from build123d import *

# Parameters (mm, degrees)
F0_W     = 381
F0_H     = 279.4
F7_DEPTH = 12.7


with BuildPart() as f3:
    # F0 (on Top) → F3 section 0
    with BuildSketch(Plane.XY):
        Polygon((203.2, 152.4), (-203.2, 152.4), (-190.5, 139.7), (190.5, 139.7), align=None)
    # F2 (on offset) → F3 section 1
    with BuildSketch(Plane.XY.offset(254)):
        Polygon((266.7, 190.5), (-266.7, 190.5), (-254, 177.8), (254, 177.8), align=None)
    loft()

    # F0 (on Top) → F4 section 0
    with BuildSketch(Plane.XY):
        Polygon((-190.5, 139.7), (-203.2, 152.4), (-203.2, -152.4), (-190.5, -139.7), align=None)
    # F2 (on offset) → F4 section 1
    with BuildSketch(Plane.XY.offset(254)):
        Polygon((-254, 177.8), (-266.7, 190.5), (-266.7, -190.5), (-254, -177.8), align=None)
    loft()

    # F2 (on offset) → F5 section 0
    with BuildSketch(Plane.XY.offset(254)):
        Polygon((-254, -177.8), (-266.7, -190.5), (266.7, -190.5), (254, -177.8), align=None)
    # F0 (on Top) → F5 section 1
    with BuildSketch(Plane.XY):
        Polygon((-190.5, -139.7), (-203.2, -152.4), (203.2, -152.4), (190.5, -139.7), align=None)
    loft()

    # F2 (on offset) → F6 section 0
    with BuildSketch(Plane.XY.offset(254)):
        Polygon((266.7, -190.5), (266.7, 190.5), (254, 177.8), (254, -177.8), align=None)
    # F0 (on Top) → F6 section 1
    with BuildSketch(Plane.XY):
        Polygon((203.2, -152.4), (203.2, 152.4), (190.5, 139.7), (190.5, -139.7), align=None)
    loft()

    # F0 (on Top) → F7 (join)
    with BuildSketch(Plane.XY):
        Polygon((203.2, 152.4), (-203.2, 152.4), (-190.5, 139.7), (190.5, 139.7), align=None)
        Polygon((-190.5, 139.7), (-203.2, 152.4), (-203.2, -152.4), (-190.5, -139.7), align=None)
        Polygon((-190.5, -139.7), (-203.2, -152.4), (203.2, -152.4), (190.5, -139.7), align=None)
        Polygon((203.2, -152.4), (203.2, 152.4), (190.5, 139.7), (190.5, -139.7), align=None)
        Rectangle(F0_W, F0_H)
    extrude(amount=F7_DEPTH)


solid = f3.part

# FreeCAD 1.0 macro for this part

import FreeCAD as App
import Part
import Sketcher

V = App.Vector
Q = App.Units.Quantity

doc = App.newDocument("Part")
params = doc.addObject("Spreadsheet::Sheet", "Params")
for row, (alias, value) in enumerate([
    ("sketch1_width", "16 in"),
    ("sketch1_width2", "15 in"),
    ("sketch2_width", "21 in"),
    ("sketch2_width2", "20 in"),
    ("sketch3_height", "12 in"),
    ("sketch3_height2", "11 in"),
    ("sketch4_height", "15 in"),
    ("sketch4_height2", "14 in"),
    ("sketch5_width", "21 in"),
    ("sketch5_width2", "20 in"),
    ("sketch6_width", "16 in"),
    ("sketch6_width2", "15 in"),
    ("sketch7_height", "15 in"),
    ("sketch7_height2", "14 in"),
    ("sketch8_height", "12 in"),
    ("sketch8_height2", "11 in"),
    ("sketch9_width", "16 in"),
    ("sketch9_height", "12 in"),
    ("pad1_length", "0.5 in"),
], start=1):
    params.set(f"A{row}", alias)
    params.set(f"B{row}", "=" + value)
    params.setAlias(f"B{row}", alias)

body = doc.addObject("PartDesign::Body", "Body")

# Sketch on XY plane
sketch1 = body.newObject("Sketcher::SketchObject", "Sketch")
sketch1.AttachmentSupport = (doc.getObject("XY_Plane"), [""])
sketch1.MapMode = "FlatFace"
sketch1.addGeometry([
    Part.LineSegment(V(203, 152, 0), V(-203, 152, 0)),
    Part.LineSegment(V(-203, 152, 0), V(-190, 140, 0)),
    Part.LineSegment(V(-190, 140, 0), V(190, 140, 0)),
    Part.LineSegment(V(190, 140, 0), V(203, 152, 0)),
], False)
sketch1.addConstraint([
    Sketcher.Constraint("Coincident", 0, 2, 1, 1),
    Sketcher.Constraint("Coincident", 1, 2, 2, 1),
    Sketcher.Constraint("Coincident", 2, 2, 3, 1),
    Sketcher.Constraint("Coincident", 3, 2, 0, 1),
    Sketcher.Constraint("Horizontal", 0),
    Sketcher.Constraint("Horizontal", 2),
    Sketcher.Constraint("Perpendicular", 1, 3),
    Sketcher.Constraint("Equal", 1, 3),
    Sketcher.Constraint("DistanceX", 0, 2, 0, 1, Q("16 in")),
    Sketcher.Constraint("DistanceX", 2, 1, 2, 2, Q("15 in")),
    Sketcher.Constraint("DistanceX", 0, 2, -1, 1, Q("8 in")),
    Sketcher.Constraint("DistanceY", -1, 1, 0, 2, Q("6 in")),
])
sketch1.setExpression("Constraints[8]", "Params.sketch1_width")
sketch1.setExpression("Constraints[9]", "Params.sketch1_width2")

# Sketch on XY plane
sketch2 = body.newObject("Sketcher::SketchObject", "Sketch001")
sketch2.AttachmentSupport = (doc.getObject("XY_Plane"), [""])
sketch2.MapMode = "FlatFace"
sketch2.AttachmentOffset = App.Placement(V(0, 0, 10 * 25.4), App.Rotation())
sketch2.addGeometry([
    Part.LineSegment(V(267, 190, 0), V(-267, 190, 0)),
    Part.LineSegment(V(-267, 190, 0), V(-254, 178, 0)),
    Part.LineSegment(V(-254, 178, 0), V(254, 178, 0)),
    Part.LineSegment(V(254, 178, 0), V(267, 190, 0)),
], False)
sketch2.addConstraint([
    Sketcher.Constraint("Coincident", 0, 2, 1, 1),
    Sketcher.Constraint("Coincident", 1, 2, 2, 1),
    Sketcher.Constraint("Coincident", 2, 2, 3, 1),
    Sketcher.Constraint("Coincident", 3, 2, 0, 1),
    Sketcher.Constraint("Horizontal", 0),
    Sketcher.Constraint("Horizontal", 2),
    Sketcher.Constraint("Perpendicular", 1, 3),
    Sketcher.Constraint("Equal", 1, 3),
    Sketcher.Constraint("DistanceX", 0, 2, 0, 1, Q("21 in")),
    Sketcher.Constraint("DistanceX", 2, 1, 2, 2, Q("20 in")),
    Sketcher.Constraint("DistanceX", 1, 2, -1, 1, Q("10 in")),
    Sketcher.Constraint("DistanceY", -1, 1, 1, 2, Q("7 in")),
])
sketch2.setExpression("Constraints[8]", "Params.sketch2_width")
sketch2.setExpression("Constraints[9]", "Params.sketch2_width2")

additiveloft = body.newObject("PartDesign::AdditiveLoft", "AdditiveLoft")
additiveloft.Profile = sketch1
additiveloft.Sections = [sketch2]

# Sketch on XY plane
sketch3 = body.newObject("Sketcher::SketchObject", "Sketch002")
sketch3.AttachmentSupport = (doc.getObject("XY_Plane"), [""])
sketch3.MapMode = "FlatFace"
sketch3.addGeometry([
    Part.LineSegment(V(-190, 140, 0), V(-203, 152, 0)),
    Part.LineSegment(V(-203, 152, 0), V(-203, -152, 0)),
    Part.LineSegment(V(-203, -152, 0), V(-190, -140, 0)),
    Part.LineSegment(V(-190, -140, 0), V(-190, 140, 0)),
], False)
sketch3.addConstraint([
    Sketcher.Constraint("Coincident", 0, 2, 1, 1),
    Sketcher.Constraint("Coincident", 1, 2, 2, 1),
    Sketcher.Constraint("Coincident", 2, 2, 3, 1),
    Sketcher.Constraint("Coincident", 3, 2, 0, 1),
    Sketcher.Constraint("Vertical", 1),
    Sketcher.Constraint("Vertical", 3),
    Sketcher.Constraint("Perpendicular", 0, 2),
    Sketcher.Constraint("Equal", 0, 2),
    Sketcher.Constraint("DistanceY", 1, 2, 1, 1, Q("12 in")),
    Sketcher.Constraint("DistanceY", 3, 1, 3, 2, Q("11 in")),
    Sketcher.Constraint("DistanceX", 0, 2, -1, 1, Q("8 in")),
    Sketcher.Constraint("DistanceY", -1, 1, 0, 2, Q("6 in")),
])
sketch3.setExpression("Constraints[8]", "Params.sketch3_height")
sketch3.setExpression("Constraints[9]", "Params.sketch3_height2")

# Sketch on XY plane
sketch4 = body.newObject("Sketcher::SketchObject", "Sketch003")
sketch4.AttachmentSupport = (doc.getObject("XY_Plane"), [""])
sketch4.MapMode = "FlatFace"
sketch4.AttachmentOffset = App.Placement(V(0, 0, 10 * 25.4), App.Rotation())
sketch4.addGeometry([
    Part.LineSegment(V(-254, 178, 0), V(-267, 190, 0)),
    Part.LineSegment(V(-267, 190, 0), V(-267, -190, 0)),
    Part.LineSegment(V(-267, -190, 0), V(-254, -178, 0)),
    Part.LineSegment(V(-254, -178, 0), V(-254, 178, 0)),
], False)
sketch4.addConstraint([
    Sketcher.Constraint("Coincident", 0, 2, 1, 1),
    Sketcher.Constraint("Coincident", 1, 2, 2, 1),
    Sketcher.Constraint("Coincident", 2, 2, 3, 1),
    Sketcher.Constraint("Coincident", 3, 2, 0, 1),
    Sketcher.Constraint("Vertical", 1),
    Sketcher.Constraint("Vertical", 3),
    Sketcher.Constraint("Perpendicular", 0, 2),
    Sketcher.Constraint("Equal", 0, 2),
    Sketcher.Constraint("DistanceY", 1, 2, 1, 1, Q("15 in")),
    Sketcher.Constraint("DistanceY", 3, 1, 3, 2, Q("14 in")),
    Sketcher.Constraint("DistanceX", 2, 2, -1, 1, Q("10 in")),
    Sketcher.Constraint("DistanceY", 2, 2, -1, 1, Q("7 in")),
])
sketch4.setExpression("Constraints[8]", "Params.sketch4_height")
sketch4.setExpression("Constraints[9]", "Params.sketch4_height2")

additiveloft2 = body.newObject("PartDesign::AdditiveLoft", "AdditiveLoft001")
additiveloft2.Profile = sketch3
additiveloft2.Sections = [sketch4]

# Sketch on XY plane
sketch5 = body.newObject("Sketcher::SketchObject", "Sketch004")
sketch5.AttachmentSupport = (doc.getObject("XY_Plane"), [""])
sketch5.MapMode = "FlatFace"
sketch5.AttachmentOffset = App.Placement(V(0, 0, 10 * 25.4), App.Rotation())
sketch5.addGeometry([
    Part.LineSegment(V(-254, -178, 0), V(-267, -190, 0)),
    Part.LineSegment(V(-267, -190, 0), V(267, -190, 0)),
    Part.LineSegment(V(267, -190, 0), V(254, -178, 0)),
    Part.LineSegment(V(254, -178, 0), V(-254, -178, 0)),
], False)
sketch5.addConstraint([
    Sketcher.Constraint("Coincident", 0, 2, 1, 1),
    Sketcher.Constraint("Coincident", 1, 2, 2, 1),
    Sketcher.Constraint("Coincident", 2, 2, 3, 1),
    Sketcher.Constraint("Coincident", 3, 2, 0, 1),
    Sketcher.Constraint("Horizontal", 1),
    Sketcher.Constraint("Horizontal", 3),
    Sketcher.Constraint("Perpendicular", 0, 2),
    Sketcher.Constraint("Equal", 0, 2),
    Sketcher.Constraint("DistanceX", 1, 1, 1, 2, Q("21 in")),
    Sketcher.Constraint("DistanceX", 3, 2, 3, 1, Q("20 in")),
    Sketcher.Constraint("DistanceX", -1, 1, 2, 2, Q("10 in")),
    Sketcher.Constraint("DistanceY", 2, 2, -1, 1, Q("7 in")),
])
sketch5.setExpression("Constraints[8]", "Params.sketch5_width")
sketch5.setExpression("Constraints[9]", "Params.sketch5_width2")

# Sketch on XY plane
sketch6 = body.newObject("Sketcher::SketchObject", "Sketch005")
sketch6.AttachmentSupport = (doc.getObject("XY_Plane"), [""])
sketch6.MapMode = "FlatFace"
sketch6.addGeometry([
    Part.LineSegment(V(-190, -140, 0), V(-203, -152, 0)),
    Part.LineSegment(V(-203, -152, 0), V(203, -152, 0)),
    Part.LineSegment(V(203, -152, 0), V(190, -140, 0)),
    Part.LineSegment(V(190, -140, 0), V(-190, -140, 0)),
], False)
sketch6.addConstraint([
    Sketcher.Constraint("Coincident", 0, 2, 1, 1),
    Sketcher.Constraint("Coincident", 1, 2, 2, 1),
    Sketcher.Constraint("Coincident", 2, 2, 3, 1),
    Sketcher.Constraint("Coincident", 3, 2, 0, 1),
    Sketcher.Constraint("Horizontal", 1),
    Sketcher.Constraint("Horizontal", 3),
    Sketcher.Constraint("Perpendicular", 0, 2),
    Sketcher.Constraint("Equal", 0, 2),
    Sketcher.Constraint("DistanceX", 1, 1, 1, 2, Q("16 in")),
    Sketcher.Constraint("DistanceX", 3, 2, 3, 1, Q("15 in")),
    Sketcher.Constraint("DistanceX", 0, 2, -1, 1, Q("8 in")),
    Sketcher.Constraint("DistanceY", 0, 2, -1, 1, Q("6 in")),
])
sketch6.setExpression("Constraints[8]", "Params.sketch6_width")
sketch6.setExpression("Constraints[9]", "Params.sketch6_width2")

additiveloft3 = body.newObject("PartDesign::AdditiveLoft", "AdditiveLoft002")
additiveloft3.Profile = sketch5
additiveloft3.Sections = [sketch6]

# Sketch on XY plane
sketch7 = body.newObject("Sketcher::SketchObject", "Sketch006")
sketch7.AttachmentSupport = (doc.getObject("XY_Plane"), [""])
sketch7.MapMode = "FlatFace"
sketch7.AttachmentOffset = App.Placement(V(0, 0, 10 * 25.4), App.Rotation())
sketch7.addGeometry([
    Part.LineSegment(V(267, -190, 0), V(267, 190, 0)),
    Part.LineSegment(V(267, 190, 0), V(254, 178, 0)),
    Part.LineSegment(V(254, 178, 0), V(254, -178, 0)),
    Part.LineSegment(V(254, -178, 0), V(267, -190, 0)),
], False)
sketch7.addConstraint([
    Sketcher.Constraint("Coincident", 0, 2, 1, 1),
    Sketcher.Constraint("Coincident", 1, 2, 2, 1),
    Sketcher.Constraint("Coincident", 2, 2, 3, 1),
    Sketcher.Constraint("Coincident", 3, 2, 0, 1),
    Sketcher.Constraint("Vertical", 0),
    Sketcher.Constraint("Vertical", 2),
    Sketcher.Constraint("Perpendicular", 1, 3),
    Sketcher.Constraint("Equal", 1, 3),
    Sketcher.Constraint("DistanceY", 0, 1, 0, 2, Q("15 in")),
    Sketcher.Constraint("DistanceY", 2, 2, 2, 1, Q("14 in")),
    Sketcher.Constraint("DistanceX", -1, 1, 1, 2, Q("10 in")),
    Sketcher.Constraint("DistanceY", -1, 1, 1, 2, Q("7 in")),
])
sketch7.setExpression("Constraints[8]", "Params.sketch7_height")
sketch7.setExpression("Constraints[9]", "Params.sketch7_height2")

# Sketch on XY plane
sketch8 = body.newObject("Sketcher::SketchObject", "Sketch007")
sketch8.AttachmentSupport = (doc.getObject("XY_Plane"), [""])
sketch8.MapMode = "FlatFace"
sketch8.addGeometry([
    Part.LineSegment(V(203, -152, 0), V(203, 152, 0)),
    Part.LineSegment(V(203, 152, 0), V(190, 140, 0)),
    Part.LineSegment(V(190, 140, 0), V(190, -140, 0)),
    Part.LineSegment(V(190, -140, 0), V(203, -152, 0)),
], False)
sketch8.addConstraint([
    Sketcher.Constraint("Coincident", 0, 2, 1, 1),
    Sketcher.Constraint("Coincident", 1, 2, 2, 1),
    Sketcher.Constraint("Coincident", 2, 2, 3, 1),
    Sketcher.Constraint("Coincident", 3, 2, 0, 1),
    Sketcher.Constraint("Vertical", 0),
    Sketcher.Constraint("Vertical", 2),
    Sketcher.Constraint("Perpendicular", 1, 3),
    Sketcher.Constraint("Equal", 1, 3),
    Sketcher.Constraint("DistanceY", 0, 1, 0, 2, Q("12 in")),
    Sketcher.Constraint("DistanceY", 2, 2, 2, 1, Q("11 in")),
    Sketcher.Constraint("DistanceX", -1, 1, 0, 2, Q("8 in")),
    Sketcher.Constraint("DistanceY", -1, 1, 0, 2, Q("6 in")),
])
sketch8.setExpression("Constraints[8]", "Params.sketch8_height")
sketch8.setExpression("Constraints[9]", "Params.sketch8_height2")

additiveloft4 = body.newObject("PartDesign::AdditiveLoft", "AdditiveLoft003")
additiveloft4.Profile = sketch7
additiveloft4.Sections = [sketch8]

# Sketch on XY plane
sketch9 = body.newObject("Sketcher::SketchObject", "Sketch008")
sketch9.AttachmentSupport = (doc.getObject("XY_Plane"), [""])
sketch9.MapMode = "FlatFace"
sketch9.addGeometry([
    Part.LineSegment(V(203, 152, 0), V(-203, 152, 0)),
    Part.LineSegment(V(-203, 152, 0), V(-203, -152, 0)),
    Part.LineSegment(V(-203, -152, 0), V(203, -152, 0)),
    Part.LineSegment(V(203, -152, 0), V(203, 152, 0)),
], False)
sketch9.addConstraint([
    Sketcher.Constraint("Coincident", 0, 2, 1, 1),
    Sketcher.Constraint("Coincident", 1, 2, 2, 1),
    Sketcher.Constraint("Coincident", 2, 2, 3, 1),
    Sketcher.Constraint("Coincident", 3, 2, 0, 1),
    Sketcher.Constraint("Horizontal", 0),
    Sketcher.Constraint("Vertical", 1),
    Sketcher.Constraint("Horizontal", 2),
    Sketcher.Constraint("Vertical", 3),
    Sketcher.Constraint("Symmetric", 0, 2, 2, 2, -1, 1),
    Sketcher.Constraint("DistanceX", 0, 2, 0, 1, Q("16 in")),
    Sketcher.Constraint("DistanceY", 1, 2, 1, 1, Q("12 in")),
])
sketch9.setExpression("Constraints[9]", "Params.sketch9_width")
sketch9.setExpression("Constraints[10]", "Params.sketch9_height")
pad1 = body.newObject("PartDesign::Pad", "Pad")
pad1.Profile = sketch9
pad1.setExpression("Length", "Params.pad1_length")

doc.recompute()
